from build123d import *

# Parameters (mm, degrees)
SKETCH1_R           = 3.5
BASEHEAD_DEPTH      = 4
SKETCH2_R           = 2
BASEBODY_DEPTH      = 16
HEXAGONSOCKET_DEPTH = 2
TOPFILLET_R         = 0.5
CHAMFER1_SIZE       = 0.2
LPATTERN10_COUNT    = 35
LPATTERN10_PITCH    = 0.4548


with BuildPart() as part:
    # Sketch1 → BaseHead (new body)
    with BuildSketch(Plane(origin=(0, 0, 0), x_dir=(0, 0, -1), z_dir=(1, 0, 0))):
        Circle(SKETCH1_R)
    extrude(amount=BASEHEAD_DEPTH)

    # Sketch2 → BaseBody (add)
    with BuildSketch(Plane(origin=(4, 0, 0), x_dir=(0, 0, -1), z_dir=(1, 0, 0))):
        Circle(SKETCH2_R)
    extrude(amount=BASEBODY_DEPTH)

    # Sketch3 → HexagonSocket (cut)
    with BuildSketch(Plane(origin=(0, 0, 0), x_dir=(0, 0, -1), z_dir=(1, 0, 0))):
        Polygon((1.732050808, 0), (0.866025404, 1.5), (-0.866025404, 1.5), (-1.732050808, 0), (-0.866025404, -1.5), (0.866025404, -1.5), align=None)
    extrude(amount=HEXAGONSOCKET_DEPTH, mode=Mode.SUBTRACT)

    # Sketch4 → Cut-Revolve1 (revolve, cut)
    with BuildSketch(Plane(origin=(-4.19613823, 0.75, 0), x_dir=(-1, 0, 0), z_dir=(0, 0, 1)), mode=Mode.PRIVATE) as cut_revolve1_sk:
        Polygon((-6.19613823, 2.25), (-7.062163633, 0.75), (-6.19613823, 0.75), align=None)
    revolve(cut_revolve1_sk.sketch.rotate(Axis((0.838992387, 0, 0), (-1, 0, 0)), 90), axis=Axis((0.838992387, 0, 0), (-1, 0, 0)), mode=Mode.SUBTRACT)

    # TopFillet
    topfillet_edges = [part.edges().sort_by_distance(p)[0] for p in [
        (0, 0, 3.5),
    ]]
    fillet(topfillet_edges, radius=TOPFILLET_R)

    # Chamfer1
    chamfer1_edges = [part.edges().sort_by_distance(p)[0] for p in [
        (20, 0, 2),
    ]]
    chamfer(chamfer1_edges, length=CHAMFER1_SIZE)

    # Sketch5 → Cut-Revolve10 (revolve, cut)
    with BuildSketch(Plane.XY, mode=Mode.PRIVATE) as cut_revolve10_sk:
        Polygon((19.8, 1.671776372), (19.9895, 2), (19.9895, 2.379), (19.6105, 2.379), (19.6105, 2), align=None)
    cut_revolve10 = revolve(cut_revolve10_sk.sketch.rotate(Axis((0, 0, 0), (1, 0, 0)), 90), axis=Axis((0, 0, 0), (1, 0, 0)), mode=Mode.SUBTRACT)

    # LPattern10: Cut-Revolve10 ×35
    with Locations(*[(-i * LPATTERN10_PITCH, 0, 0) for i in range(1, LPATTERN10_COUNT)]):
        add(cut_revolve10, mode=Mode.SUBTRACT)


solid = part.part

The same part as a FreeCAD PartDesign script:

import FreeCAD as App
import Part
import Sketcher

V = App.Vector
Q = App.Units.Quantity


def edges_at(feature, points):
    """Names of the edges that pass closest to the given points."""
    edges = feature.Shape.Edges
    near = lambda p: min(range(len(edges)), key=lambda i: edges[i].distToShape(Part.Vertex(*p))[0])
    return sorted({f"Edge{near(p) + 1}" for p in points})

doc = App.newDocument("Part")
body = doc.addObject("PartDesign::Body", "Body")

# Sketch on YZ plane
sketch1 = doc.addObject("Sketcher::SketchObject", "Sketch")
body.addObject(sketch1)
sketch1.AttachmentSupport = (doc.YZ_Plane, [""])
sketch1.MapMode = "FlatFace"
sketch1.addGeometry(Part.Circle(V(0, 0, 0), V(0, 0, 1), 3.5), False)
sketch1.addConstraint(Sketcher.Constraint("Coincident", 0, 3, -1, 1))
sketch1.addConstraint(Sketcher.Constraint("Diameter", 0, Q("7 mm")))
pad1 = doc.addObject("PartDesign::Pad", "Pad")
body.addObject(pad1)
pad1.Profile = sketch1
pad1.Length = 4

# Sketch on YZ plane
sketch2 = doc.addObject("Sketcher::SketchObject", "Sketch001")
body.addObject(sketch2)
sketch2.AttachmentSupport = (doc.YZ_Plane, [""])
sketch2.MapMode = "FlatFace"
sketch2.AttachmentOffset = App.Placement(V(0, 0, 4), App.Rotation())
sketch2.addGeometry(Part.Circle(V(0, 0, 0), V(0, 0, 1), 2), False)
sketch2.addConstraint(Sketcher.Constraint("Coincident", 0, 3, -1, 1))
sketch2.addConstraint(Sketcher.Constraint("Diameter", 0, Q("4 mm")))
pad2 = doc.addObject("PartDesign::Pad", "Pad001")
body.addObject(pad2)
pad2.Profile = sketch2
pad2.Length = 16

# Sketch on YZ plane
sketch3 = doc.addObject("Sketcher::SketchObject", "Sketch002")
body.addObject(sketch3)
sketch3.AttachmentSupport = (doc.YZ_Plane, [""])
sketch3.MapMode = "FlatFace"
sketch3.addGeometry(Part.LineSegment(V(0, -1.7, 0), V(1.5, -0.9, 0)), False)
sketch3.addGeometry(Part.LineSegment(V(1.5, -0.9, 0), V(1.5, 0.9, 0)), False)
sketch3.addGeometry(Part.LineSegment(V(1.5, 0.9, 0), V(0, 1.7, 0)), False)
sketch3.addGeometry(Part.LineSegment(V(0, 1.7, 0), V(-1.5, 0.9, 0)), False)
sketch3.addGeometry(Part.LineSegment(V(-1.5, 0.9, 0), V(-1.5, -0.9, 0)), False)
sketch3.addGeometry(Part.LineSegment(V(-1.5, -0.9, 0), V(0, -1.7, 0)), False)
sketch3.addConstraint(Sketcher.Constraint("Coincident", 0, 2, 1, 1))
sketch3.addConstraint(Sketcher.Constraint("Coincident", 1, 2, 2, 1))
sketch3.addConstraint(Sketcher.Constraint("Coincident", 2, 2, 3, 1))
sketch3.addConstraint(Sketcher.Constraint("Coincident", 3, 2, 4, 1))
sketch3.addConstraint(Sketcher.Constraint("Coincident", 4, 2, 5, 1))
sketch3.addConstraint(Sketcher.Constraint("Coincident", 5, 2, 0, 1))
sketch3.addConstraint(Sketcher.Constraint("Vertical", 1))
sketch3.addConstraint(Sketcher.Constraint("Vertical", 4))
sketch3.addConstraint(Sketcher.Constraint("Symmetric", 0, 2, 3, 2, -1, 1))
sketch3.addConstraint(Sketcher.Constraint("Symmetric", 2, 2, 5, 2, -1, 1))
sketch3.addConstraint(Sketcher.Constraint("PointOnObject", 2, 2, -2))
sketch3.addConstraint(Sketcher.Constraint("Parallel", 2, 5))
sketch3.addConstraint(Sketcher.Constraint("Horizontal", 1, 2, 3, 2))
sketch3.addConstraint(Sketcher.Constraint("Angle", 0, Q("30 deg")))
sketch3.addConstraint(Sketcher.Constraint("DistanceX", 3, 2, 1, 2, Q("3 mm")))
sketch3.addConstraint(Sketcher.Constraint("DistanceY", 1, 1, 1, 2, Q("1.732051 mm")))
pocket1 = doc.addObject("PartDesign::Pocket", "Pocket")
body.addObject(pocket1)
pocket1.Profile = sketch3
pocket1.Length = 2
pocket1.Reversed = True

# Sketch on XY plane
sketch4 = doc.addObject("Sketcher::SketchObject", "Sketch003")
body.addObject(sketch4)
sketch4.AttachmentSupport = (doc.XY_Plane, [""])
sketch4.MapMode = "FlatFace"
sketch4.addGeometry(Part.LineSegment(V(2, -1.5, 0), V(2.9, 0, 0)), False)
sketch4.addGeometry(Part.LineSegment(V(2.9, 0, 0), V(2, 0, 0)), False)
sketch4.addGeometry(Part.LineSegment(V(2, 0, 0), V(2, -1.5, 0)), False)
sketch4.addConstraint(Sketcher.Constraint("Coincident", 0, 2, 1, 1))
sketch4.addConstraint(Sketcher.Constraint("Coincident", 1, 2, 2, 1))
sketch4.addConstraint(Sketcher.Constraint("Coincident", 2, 2, 0, 1))
sketch4.addConstraint(Sketcher.Constraint("Horizontal", 1))
sketch4.addConstraint(Sketcher.Constraint("Vertical", 2))
sketch4.addConstraint(Sketcher.Constraint("PointOnObject", 0, 2, -1))
sketch4.addConstraint(Sketcher.Constraint("Angle", 0, Q("60 deg")))
sketch4.addConstraint(Sketcher.Constraint("DistanceY", 2, 2, 2, 1, Q("1.5 mm")))
sketch4.addConstraint(Sketcher.Constraint("DistanceX", -1, 1, 1, 2, Q("2 mm")))
groove = doc.addObject("PartDesign::Groove", "Groove")
body.addObject(groove)
groove.Profile = sketch4
groove.ReferenceAxis = (sketch4, ["H_Axis"])
groove.Angle = 360
doc.recompute()

fillet = doc.addObject("PartDesign::Fillet", "Fillet")
body.addObject(fillet)
fillet.Base = (groove, edges_at(groove, [(0, 0, 3.5)]))
fillet.Radius = 0.5
doc.recompute()

chamfer = doc.addObject("PartDesign::Chamfer", "Chamfer")
body.addObject(chamfer)
chamfer.Base = (fillet, edges_at(fillet, [(20, 0, 2)]))
chamfer.Size = 0.2

# Sketch on XY plane
sketch5 = doc.addObject("Sketcher::SketchObject", "Sketch004")
body.addObject(sketch5)
sketch5.AttachmentSupport = (doc.XY_Plane, [""])
sketch5.MapMode = "FlatFace"
sketch5.addGeometry(Part.LineSegment(V(19.8, 1.67, 0), V(19.99, 2, 0)), False)
sketch5.addGeometry(Part.LineSegment(V(19.99, 2, 0), V(19.99, 2.38, 0)), False)
sketch5.addGeometry(Part.LineSegment(V(19.99, 2.38, 0), V(19.61, 2.38, 0)), False)
sketch5.addGeometry(Part.LineSegment(V(19.61, 2.38, 0), V(19.61, 2, 0)), False)
sketch5.addGeometry(Part.LineSegment(V(19.61, 2, 0), V(19.8, 1.67, 0)), False)
sketch5.addConstraint(Sketcher.Constraint("Coincident", 0, 2, 1, 1))
sketch5.addConstraint(Sketcher.Constraint("Coincident", 1, 2, 2, 1))
sketch5.addConstraint(Sketcher.Constraint("Coincident", 2, 2, 3, 1))
sketch5.addConstraint(Sketcher.Constraint("Coincident", 3, 2, 4, 1))
sketch5.addConstraint(Sketcher.Constraint("Coincident", 4, 2, 0, 1))
sketch5.addConstraint(Sketcher.Constraint("Vertical", 1))
sketch5.addConstraint(Sketcher.Constraint("Horizontal", 2))
sketch5.addConstraint(Sketcher.Constraint("Vertical", 3))
sketch5.addConstraint(Sketcher.Constraint("Horizontal", 0, 2, 3, 2))
sketch5.addConstraint(Sketcher.Constraint("Equal", 2, 1))
sketch5.addConstraint(Sketcher.Constraint("Equal", 0, 4))
sketch5.addConstraint(Sketcher.Constraint("Angle", 0, Q("60 deg")))
sketch5.addConstraint(Sketcher.Constraint("DistanceY", -1, 1, 0, 2, Q("2 mm")))
sketch5.addConstraint(Sketcher.Constraint("DistanceX", -1, 1, 4, 2, Q("19.8 mm")))
sketch5.addConstraint(Sketcher.Constraint("DistanceX", 2, 2, 2, 1, Q("0.379 mm")))
groove2 = doc.addObject("PartDesign::Groove", "Groove001")
body.addObject(groove2)
groove2.Profile = sketch5
groove2.ReferenceAxis = (sketch5, ["H_Axis"])
groove2.Angle = 360
doc.recompute()

linearpattern = doc.addObject("PartDesign::LinearPattern", "LinearPattern")
body.addObject(linearpattern)
linearpattern.Originals = [groove2]
linearpattern.Direction = (doc.X_Axis, [""])
linearpattern.Mode = "offset"
linearpattern.Offset = 0.4548
linearpattern.Occurrences = 35
linearpattern.Reversed = True
body.Tip = linearpattern

doc.recompute()
